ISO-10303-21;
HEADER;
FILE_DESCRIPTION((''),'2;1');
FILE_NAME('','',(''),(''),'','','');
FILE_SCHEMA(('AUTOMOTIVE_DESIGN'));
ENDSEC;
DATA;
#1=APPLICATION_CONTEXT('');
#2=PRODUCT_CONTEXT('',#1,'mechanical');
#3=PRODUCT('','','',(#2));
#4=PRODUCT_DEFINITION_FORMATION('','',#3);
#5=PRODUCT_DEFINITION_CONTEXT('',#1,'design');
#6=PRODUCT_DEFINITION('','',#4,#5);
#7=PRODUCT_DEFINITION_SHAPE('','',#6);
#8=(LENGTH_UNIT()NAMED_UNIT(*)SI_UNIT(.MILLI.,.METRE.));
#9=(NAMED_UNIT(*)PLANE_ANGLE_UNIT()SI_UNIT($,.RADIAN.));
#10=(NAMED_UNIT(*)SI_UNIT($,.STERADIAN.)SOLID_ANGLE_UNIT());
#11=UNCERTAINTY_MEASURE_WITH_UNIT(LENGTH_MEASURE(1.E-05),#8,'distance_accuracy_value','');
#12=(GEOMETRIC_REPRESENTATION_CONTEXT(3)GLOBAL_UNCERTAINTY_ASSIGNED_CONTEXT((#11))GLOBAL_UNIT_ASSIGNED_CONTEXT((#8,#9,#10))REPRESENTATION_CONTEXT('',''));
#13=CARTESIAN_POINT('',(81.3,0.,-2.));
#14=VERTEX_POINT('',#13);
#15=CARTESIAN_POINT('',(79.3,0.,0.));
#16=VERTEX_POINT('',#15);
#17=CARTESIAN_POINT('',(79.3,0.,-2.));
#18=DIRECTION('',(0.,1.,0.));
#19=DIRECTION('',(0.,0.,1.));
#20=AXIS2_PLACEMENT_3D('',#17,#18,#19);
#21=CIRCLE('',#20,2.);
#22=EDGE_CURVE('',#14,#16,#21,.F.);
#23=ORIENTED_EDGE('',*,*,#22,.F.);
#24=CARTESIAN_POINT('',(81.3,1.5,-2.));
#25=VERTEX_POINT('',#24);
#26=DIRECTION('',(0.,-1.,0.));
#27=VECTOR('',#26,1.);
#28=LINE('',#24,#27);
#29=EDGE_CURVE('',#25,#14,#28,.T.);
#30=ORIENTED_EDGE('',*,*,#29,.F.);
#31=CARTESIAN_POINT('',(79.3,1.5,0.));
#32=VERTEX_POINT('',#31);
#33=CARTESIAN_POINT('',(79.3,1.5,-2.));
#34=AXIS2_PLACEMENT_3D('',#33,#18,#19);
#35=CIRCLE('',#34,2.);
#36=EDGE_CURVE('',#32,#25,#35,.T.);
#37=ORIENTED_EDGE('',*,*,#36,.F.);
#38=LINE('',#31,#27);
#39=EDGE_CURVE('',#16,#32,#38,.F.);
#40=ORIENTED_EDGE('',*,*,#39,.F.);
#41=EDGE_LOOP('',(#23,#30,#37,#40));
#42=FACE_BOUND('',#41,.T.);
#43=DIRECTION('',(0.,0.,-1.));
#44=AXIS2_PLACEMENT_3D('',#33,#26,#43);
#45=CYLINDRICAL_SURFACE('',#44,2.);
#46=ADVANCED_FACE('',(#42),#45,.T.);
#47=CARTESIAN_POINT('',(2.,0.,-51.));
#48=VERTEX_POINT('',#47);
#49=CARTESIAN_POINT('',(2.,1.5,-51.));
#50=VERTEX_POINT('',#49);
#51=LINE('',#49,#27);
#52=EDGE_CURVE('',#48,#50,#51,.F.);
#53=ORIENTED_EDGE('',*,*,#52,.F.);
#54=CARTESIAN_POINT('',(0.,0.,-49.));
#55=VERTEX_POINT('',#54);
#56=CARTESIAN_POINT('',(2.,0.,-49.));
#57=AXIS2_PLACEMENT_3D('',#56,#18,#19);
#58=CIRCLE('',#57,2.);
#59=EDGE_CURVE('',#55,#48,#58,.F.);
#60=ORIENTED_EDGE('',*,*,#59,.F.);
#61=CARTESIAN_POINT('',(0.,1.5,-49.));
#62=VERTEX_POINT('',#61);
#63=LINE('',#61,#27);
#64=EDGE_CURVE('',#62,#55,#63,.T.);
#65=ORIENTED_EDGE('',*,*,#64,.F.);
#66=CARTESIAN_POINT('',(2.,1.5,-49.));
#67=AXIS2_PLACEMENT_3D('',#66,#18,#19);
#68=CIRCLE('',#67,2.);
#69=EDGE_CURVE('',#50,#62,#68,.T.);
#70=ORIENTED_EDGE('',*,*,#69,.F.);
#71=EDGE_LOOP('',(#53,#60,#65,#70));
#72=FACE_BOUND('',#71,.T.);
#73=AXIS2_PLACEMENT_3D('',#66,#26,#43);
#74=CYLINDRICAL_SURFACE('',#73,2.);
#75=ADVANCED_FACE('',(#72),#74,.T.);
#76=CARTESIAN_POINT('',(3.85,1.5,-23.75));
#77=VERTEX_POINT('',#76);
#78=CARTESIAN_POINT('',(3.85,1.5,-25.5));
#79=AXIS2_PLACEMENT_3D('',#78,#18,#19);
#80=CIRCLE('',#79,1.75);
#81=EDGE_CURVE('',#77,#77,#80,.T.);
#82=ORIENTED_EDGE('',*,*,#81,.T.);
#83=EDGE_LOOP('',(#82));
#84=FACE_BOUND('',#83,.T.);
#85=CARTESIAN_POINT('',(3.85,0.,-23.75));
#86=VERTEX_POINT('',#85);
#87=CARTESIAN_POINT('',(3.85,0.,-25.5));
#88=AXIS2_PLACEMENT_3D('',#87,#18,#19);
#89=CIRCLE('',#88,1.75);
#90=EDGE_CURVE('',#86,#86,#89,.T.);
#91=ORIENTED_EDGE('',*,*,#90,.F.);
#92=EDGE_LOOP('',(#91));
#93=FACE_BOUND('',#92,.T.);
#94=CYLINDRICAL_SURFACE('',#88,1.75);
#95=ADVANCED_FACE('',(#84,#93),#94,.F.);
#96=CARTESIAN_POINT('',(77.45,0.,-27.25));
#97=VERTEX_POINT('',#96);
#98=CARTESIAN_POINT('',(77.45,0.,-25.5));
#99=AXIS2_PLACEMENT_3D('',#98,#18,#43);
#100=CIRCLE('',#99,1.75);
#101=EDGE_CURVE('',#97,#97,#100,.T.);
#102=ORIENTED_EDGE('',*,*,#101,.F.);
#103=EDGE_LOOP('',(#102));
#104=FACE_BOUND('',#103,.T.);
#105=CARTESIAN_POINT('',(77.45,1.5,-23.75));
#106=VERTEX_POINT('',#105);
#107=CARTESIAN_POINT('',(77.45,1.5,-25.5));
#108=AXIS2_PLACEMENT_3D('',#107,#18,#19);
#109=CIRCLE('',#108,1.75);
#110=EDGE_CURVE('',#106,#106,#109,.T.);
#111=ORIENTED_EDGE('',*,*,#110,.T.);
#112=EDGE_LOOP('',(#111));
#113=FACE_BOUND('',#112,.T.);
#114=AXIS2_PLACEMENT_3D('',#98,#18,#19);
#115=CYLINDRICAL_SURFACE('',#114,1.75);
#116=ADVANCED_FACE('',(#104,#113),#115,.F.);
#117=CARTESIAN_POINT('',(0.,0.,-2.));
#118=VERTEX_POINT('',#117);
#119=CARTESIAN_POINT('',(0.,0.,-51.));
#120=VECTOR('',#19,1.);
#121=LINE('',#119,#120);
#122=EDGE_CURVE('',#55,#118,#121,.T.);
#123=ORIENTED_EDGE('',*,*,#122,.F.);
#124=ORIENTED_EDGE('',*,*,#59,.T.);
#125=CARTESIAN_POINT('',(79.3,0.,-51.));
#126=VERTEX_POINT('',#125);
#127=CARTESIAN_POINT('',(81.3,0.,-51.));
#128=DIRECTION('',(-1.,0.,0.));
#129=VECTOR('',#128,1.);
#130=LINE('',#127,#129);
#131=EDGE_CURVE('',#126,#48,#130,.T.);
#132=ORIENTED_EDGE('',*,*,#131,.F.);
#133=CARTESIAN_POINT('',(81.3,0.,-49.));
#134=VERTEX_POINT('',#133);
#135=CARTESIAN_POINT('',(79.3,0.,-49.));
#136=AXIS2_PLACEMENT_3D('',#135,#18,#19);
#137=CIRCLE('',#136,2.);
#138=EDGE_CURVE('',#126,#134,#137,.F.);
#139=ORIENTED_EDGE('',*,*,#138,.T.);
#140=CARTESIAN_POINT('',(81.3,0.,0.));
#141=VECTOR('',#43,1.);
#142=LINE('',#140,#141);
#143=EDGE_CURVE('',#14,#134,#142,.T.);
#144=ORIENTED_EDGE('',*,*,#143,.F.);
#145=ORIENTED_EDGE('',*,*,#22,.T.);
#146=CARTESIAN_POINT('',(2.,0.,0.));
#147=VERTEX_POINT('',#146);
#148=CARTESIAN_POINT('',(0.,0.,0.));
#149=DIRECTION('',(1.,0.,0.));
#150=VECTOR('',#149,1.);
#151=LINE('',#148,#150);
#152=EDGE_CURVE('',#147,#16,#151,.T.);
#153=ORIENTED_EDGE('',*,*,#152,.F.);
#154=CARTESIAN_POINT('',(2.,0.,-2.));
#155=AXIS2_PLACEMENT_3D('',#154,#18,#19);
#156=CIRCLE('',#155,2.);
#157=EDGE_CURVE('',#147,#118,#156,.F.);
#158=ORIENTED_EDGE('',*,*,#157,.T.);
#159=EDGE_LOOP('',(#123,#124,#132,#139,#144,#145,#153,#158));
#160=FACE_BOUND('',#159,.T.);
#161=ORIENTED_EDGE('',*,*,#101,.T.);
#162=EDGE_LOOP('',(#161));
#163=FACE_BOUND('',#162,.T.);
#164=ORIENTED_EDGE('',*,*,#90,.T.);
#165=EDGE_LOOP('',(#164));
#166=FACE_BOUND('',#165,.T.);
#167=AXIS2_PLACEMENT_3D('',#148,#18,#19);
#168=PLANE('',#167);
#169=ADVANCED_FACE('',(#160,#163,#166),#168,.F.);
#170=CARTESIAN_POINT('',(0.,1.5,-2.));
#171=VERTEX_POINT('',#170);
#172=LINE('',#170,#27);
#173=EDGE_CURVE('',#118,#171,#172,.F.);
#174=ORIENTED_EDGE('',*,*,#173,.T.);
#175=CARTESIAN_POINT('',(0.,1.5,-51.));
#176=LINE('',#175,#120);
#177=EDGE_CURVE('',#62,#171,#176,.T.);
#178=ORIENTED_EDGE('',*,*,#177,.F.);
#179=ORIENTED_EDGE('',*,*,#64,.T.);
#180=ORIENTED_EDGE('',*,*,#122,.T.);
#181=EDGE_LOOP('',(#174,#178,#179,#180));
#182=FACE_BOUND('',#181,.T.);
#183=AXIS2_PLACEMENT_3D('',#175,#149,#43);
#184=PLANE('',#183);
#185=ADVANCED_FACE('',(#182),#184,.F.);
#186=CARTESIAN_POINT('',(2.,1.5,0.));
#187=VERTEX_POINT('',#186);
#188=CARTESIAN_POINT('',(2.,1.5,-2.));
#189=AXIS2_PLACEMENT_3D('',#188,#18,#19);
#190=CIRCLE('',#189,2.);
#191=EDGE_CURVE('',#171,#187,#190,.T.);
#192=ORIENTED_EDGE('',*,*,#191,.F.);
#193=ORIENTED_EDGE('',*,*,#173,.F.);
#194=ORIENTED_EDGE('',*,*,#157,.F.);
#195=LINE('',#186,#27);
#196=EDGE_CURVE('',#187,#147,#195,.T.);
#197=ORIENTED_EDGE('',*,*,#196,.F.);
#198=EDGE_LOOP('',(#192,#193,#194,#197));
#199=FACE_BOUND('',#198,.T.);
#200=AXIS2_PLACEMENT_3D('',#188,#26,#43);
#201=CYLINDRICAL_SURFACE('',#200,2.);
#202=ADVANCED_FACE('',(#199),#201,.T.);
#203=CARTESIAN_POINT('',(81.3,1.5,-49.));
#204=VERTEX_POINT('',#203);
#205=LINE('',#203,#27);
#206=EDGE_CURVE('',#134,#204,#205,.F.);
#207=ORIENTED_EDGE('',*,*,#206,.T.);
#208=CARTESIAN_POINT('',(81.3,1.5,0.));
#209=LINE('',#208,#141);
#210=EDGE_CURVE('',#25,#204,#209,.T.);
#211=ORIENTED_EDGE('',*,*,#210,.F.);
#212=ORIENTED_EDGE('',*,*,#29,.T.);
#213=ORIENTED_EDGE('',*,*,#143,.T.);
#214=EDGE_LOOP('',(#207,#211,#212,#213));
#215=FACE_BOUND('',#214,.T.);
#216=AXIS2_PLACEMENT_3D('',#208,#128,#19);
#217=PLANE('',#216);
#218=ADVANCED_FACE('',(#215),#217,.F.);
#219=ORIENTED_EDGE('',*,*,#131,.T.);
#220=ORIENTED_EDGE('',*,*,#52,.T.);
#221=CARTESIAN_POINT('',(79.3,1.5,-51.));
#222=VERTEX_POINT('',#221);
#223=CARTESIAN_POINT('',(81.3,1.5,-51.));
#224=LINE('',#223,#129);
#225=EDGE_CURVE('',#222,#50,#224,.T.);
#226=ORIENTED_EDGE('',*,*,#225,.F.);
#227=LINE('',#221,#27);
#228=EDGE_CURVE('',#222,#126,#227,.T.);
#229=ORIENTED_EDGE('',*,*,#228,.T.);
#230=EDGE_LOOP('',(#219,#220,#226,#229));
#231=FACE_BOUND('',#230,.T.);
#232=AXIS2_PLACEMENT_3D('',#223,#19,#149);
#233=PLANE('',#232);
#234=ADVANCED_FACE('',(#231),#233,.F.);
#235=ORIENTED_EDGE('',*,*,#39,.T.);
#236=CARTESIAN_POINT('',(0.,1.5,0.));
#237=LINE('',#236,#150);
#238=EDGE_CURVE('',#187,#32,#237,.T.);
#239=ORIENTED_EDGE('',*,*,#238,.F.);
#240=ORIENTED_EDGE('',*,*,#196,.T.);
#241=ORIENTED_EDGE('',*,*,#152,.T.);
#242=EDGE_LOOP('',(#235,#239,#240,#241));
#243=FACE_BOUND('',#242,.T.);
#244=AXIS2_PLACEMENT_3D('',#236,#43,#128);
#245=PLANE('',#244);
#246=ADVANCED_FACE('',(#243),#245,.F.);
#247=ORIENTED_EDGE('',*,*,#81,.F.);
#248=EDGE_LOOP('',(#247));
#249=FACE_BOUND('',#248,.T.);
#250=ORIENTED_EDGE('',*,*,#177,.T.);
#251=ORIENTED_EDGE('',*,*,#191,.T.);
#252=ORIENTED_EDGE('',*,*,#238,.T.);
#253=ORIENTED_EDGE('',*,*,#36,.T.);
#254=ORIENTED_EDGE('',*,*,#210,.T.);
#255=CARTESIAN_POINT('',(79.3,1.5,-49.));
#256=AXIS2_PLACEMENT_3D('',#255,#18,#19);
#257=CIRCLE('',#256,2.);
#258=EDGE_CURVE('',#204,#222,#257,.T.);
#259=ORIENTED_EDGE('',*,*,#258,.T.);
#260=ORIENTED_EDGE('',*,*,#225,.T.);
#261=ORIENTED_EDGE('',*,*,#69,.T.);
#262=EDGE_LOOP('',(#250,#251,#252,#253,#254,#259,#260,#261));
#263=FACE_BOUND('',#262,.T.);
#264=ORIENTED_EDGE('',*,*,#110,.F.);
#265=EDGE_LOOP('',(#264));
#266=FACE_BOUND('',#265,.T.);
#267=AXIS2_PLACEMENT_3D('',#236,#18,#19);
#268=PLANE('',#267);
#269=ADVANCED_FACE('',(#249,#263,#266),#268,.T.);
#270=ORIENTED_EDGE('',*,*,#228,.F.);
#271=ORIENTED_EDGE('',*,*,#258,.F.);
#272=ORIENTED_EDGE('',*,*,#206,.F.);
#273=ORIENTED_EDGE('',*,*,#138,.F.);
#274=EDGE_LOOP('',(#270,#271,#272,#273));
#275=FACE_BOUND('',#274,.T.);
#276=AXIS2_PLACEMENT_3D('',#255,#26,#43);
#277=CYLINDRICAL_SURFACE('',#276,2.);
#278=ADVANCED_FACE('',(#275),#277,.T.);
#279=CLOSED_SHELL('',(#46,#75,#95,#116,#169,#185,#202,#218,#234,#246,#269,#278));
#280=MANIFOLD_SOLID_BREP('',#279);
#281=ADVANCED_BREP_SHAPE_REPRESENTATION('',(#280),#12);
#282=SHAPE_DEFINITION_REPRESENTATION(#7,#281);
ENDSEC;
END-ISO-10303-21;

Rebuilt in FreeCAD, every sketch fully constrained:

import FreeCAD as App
import Part
import Sketcher
Q = App.Units.Quantity


def edges_at(feature, points):
    """Names of the edges that pass closest to the given points."""
    edges = feature.Shape.Edges
    near = lambda p: min(range(len(edges)), key=lambda i: edges[i].distToShape(Part.Vertex(*p))[0])
    return sorted({f"Edge{near(p) + 1}" for p in points})

doc = App.newDocument("Part")
body = doc.addObject("PartDesign::Body", "Body")

sketch1 = body.newObject("Sketcher::SketchObject", "Sketch")
sketch1.AttachmentSupport = (doc.getObject("XZ_Plane"), [""])
sketch1.MapMode = "FlatFace"
sketch1.addGeometry([
    Part.LineSegment(App.Vector(0, -51, 0), App.Vector(0, 0, 0)),
    Part.LineSegment(App.Vector(0, 0, 0), App.Vector(81, 0, 0)),
    Part.LineSegment(App.Vector(81, 0, 0), App.Vector(81, -51, 0)),
    Part.LineSegment(App.Vector(81, -51, 0), App.Vector(0, -51, 0)),
], False)
sketch1.addConstraint([
    Sketcher.Constraint("Coincident", 0, 2, 1, 1),
    Sketcher.Constraint("Coincident", 1, 2, 2, 1),
    Sketcher.Constraint("Coincident", 2, 2, 3, 1),
    Sketcher.Constraint("Coincident", 3, 2, 0, 1),
    Sketcher.Constraint("Vertical", 0),
    Sketcher.Constraint("Horizontal", 1),
    Sketcher.Constraint("Vertical", 2),
    Sketcher.Constraint("Horizontal", 3),
    Sketcher.Constraint("Coincident", 0, 2, -1, 1),
    Sketcher.Constraint("DistanceY", 0, 1, 0, 2, Q("51 mm")),
    Sketcher.Constraint("DistanceX", 1, 1, 1, 2, Q("81.3 mm")),
])
pad1 = body.newObject("PartDesign::Pad", "Pad")
pad1.Profile = sketch1
pad1.Length = 1.5
pad1.Reversed = True
doc.recompute()

fillet = body.newObject("PartDesign::Fillet", "Fillet")
fillet.Base = (pad1, edges_at(pad1, [
    (0, 0.75, -51),
    (81.3, 0.75, -51),
    (81.3, 0.75, 0),
    (0, 0.75, 0),
]))
fillet.Radius = 2

sketch2 = body.newObject("Sketcher::SketchObject", "Sketch001")
sketch2.AttachmentSupport = (doc.getObject("XZ_Plane"), [""])
sketch2.MapMode = "FlatFace"
sketch2.AttachmentOffset = App.Placement(App.Vector(0, 0, -1.5), App.Rotation())
sketch2.addGeometry([
    Part.Circle(App.Vector(3.9, -25.5, 0), App.Vector(0, 0, 1), 1.8),
    Part.Circle(App.Vector(77.5, -25.5, 0), App.Vector(0, 0, 1), 1.8),
], False)
sketch2.addConstraint([
    Sketcher.Constraint("Equal", 0, 1),
    Sketcher.Constraint("Horizontal", 0, 3, 1, 3),
    Sketcher.Constraint("Diameter", 0, Q("3.5 mm")),
    Sketcher.Constraint("DistanceY", 0, 3, -1, 1, Q("25.5 mm")),
    Sketcher.Constraint("DistanceX", 0, 3, 1, 3, Q("73.6 mm")),
    Sketcher.Constraint("DistanceX", -1, 1, 0, 3, Q("3.85 mm")),
])
pocket1 = body.newObject("PartDesign::Pocket", "Pocket")
pocket1.Profile = sketch2
pocket1.Type = "ThroughAll"
pocket1.Midplane = True

doc.recompute()
